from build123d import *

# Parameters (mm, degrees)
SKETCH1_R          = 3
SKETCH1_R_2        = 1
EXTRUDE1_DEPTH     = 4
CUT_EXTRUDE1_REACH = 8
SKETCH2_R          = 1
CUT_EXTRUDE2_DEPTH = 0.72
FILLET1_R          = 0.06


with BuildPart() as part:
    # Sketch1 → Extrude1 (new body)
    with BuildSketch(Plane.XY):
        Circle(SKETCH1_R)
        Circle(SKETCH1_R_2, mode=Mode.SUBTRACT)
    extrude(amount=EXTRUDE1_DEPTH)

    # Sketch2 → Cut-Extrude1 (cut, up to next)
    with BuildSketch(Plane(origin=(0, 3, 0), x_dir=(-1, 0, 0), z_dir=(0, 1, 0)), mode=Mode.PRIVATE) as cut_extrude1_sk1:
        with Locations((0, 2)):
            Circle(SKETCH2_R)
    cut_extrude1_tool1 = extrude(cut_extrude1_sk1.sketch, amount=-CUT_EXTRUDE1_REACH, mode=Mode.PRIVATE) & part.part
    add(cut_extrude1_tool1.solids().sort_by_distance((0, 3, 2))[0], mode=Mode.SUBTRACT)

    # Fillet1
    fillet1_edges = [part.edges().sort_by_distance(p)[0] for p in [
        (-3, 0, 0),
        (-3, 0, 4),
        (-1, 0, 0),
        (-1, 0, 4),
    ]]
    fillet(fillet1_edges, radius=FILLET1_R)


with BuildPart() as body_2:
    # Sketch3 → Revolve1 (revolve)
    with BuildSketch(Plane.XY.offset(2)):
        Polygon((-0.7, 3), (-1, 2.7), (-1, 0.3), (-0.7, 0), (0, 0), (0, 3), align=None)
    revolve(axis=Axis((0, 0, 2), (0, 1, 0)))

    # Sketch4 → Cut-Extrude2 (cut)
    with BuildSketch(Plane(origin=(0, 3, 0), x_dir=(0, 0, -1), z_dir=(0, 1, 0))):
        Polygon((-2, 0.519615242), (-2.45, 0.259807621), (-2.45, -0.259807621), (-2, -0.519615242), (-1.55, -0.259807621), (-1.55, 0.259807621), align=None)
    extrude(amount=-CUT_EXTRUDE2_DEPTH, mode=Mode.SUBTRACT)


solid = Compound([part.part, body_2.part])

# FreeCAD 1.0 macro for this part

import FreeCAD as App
import Part
import Sketcher

V = App.Vector
Q = App.Units.Quantity


def edges_at(feature, points):
    """Names of the edges that pass closest to the given points."""
    edges = feature.Shape.Edges
    near = lambda p: min(range(len(edges)), key=lambda i: edges[i].distToShape(Part.Vertex(*p))[0])
    return sorted({f"Edge{near(p) + 1}" for p in points})


def add_polygon(sketch, points):
    """Adds a closed chain of lines whose ends are joined by coincident constraints."""
    first, n = sketch.GeometryCount, len(points)
    for a, b in zip(points, points[1:] + points[:1]):
        sketch.addGeometry(Part.LineSegment(App.Vector(*a, 0), App.Vector(*b, 0)), False)
    for i in range(n):
        sketch.addConstraint(Sketcher.Constraint("Coincident", first + i, 2, first + (i + 1) % n, 1))

doc = App.newDocument("Part")
body = doc.addObject("PartDesign::Body", "Body")

# Sketch on XY plane
sketch1 = body.newObject("Sketcher::SketchObject", "Sketch")
sketch1.AttachmentSupport = (doc.getObject("XY_Plane"), [""])
sketch1.MapMode = "FlatFace"
sketch1.addGeometry([
    Part.Circle(V(0, 0, 0), V(0, 0, 1), 3),
    Part.Circle(V(0, 0, 0), V(0, 0, 1), 1),
], False)
sketch1.addConstraint([
    Sketcher.Constraint("Coincident", 0, 3, -1, 1),
    Sketcher.Constraint("Coincident", 1, 3, -1, 1),
    Sketcher.Constraint("Diameter", 0, 6.0),
    Sketcher.Constraint("Diameter", 1, 2.0),
])
pad1 = body.newObject("PartDesign::Pad", "Pad")
pad1.Profile = sketch1
pad1.Length = 4

# Sketch on XZ plane
sketch2 = body.newObject("Sketcher::SketchObject", "Sketch001")
sketch2.AttachmentSupport = (doc.getObject("XZ_Plane"), [""])
sketch2.MapMode = "FlatFace"
sketch2.AttachmentOffset = App.Placement(V(0, 0, -3), App.Rotation())
sketch2.addGeometry(Part.Circle(V(0, 2, 0), V(0, 0, 1), 1), False)
sketch2.addConstraint([
    Sketcher.Constraint("PointOnObject", 0, 3, -2),
    Sketcher.Constraint("Diameter", 0, 2.0),
    Sketcher.Constraint("DistanceY", -1, 1, 0, 3, 2.0),
])
pocket1 = body.newObject("PartDesign::Pocket", "Pocket")
pocket1.Profile = sketch2
pocket1.Type = "UpToFirst"
pocket1.Reversed = True
doc.recompute()

fillet = body.newObject("PartDesign::Fillet", "Fillet")
fillet.Base = (pocket1, edges_at(pocket1, [
    (-3, 0, 0),
    (-3, 0, 4),
    (-1, 0, 0),
    (-1, 0, 4),
]))
fillet.Radius = 0.06
body2 = doc.addObject("PartDesign::Body", "Body001")

# Sketch on XY plane
sketch3 = body2.newObject("Sketcher::SketchObject", "Sketch002")
sketch3.AttachmentSupport = (doc.getObject("XY_Plane001"), [""])
sketch3.MapMode = "FlatFace"
sketch3.AttachmentOffset = App.Placement(V(0, 0, 2), App.Rotation())
add_polygon(sketch3, [(-0.7, 3), (-1, 2.7), (-1, 0.3), (-0.7, 0), (0, 0), (0, 3)])  # lines 0-5
sketch3.addConstraint([
    Sketcher.Constraint("Vertical", 1),
    Sketcher.Constraint("Horizontal", 3),
    Sketcher.Constraint("Vertical", 4),
    Sketcher.Constraint("Horizontal", 5),
    Sketcher.Constraint("Coincident", 3, 2, -1, 1),
    Sketcher.Constraint("Perpendicular", 0, 2),
    Sketcher.Constraint("Vertical", 2, 2, 5, 2),
    Sketcher.Constraint("Equal", 0, 2),
    Sketcher.Constraint("DistanceY", 4, 1, 4, 2, 3.0),
    Sketcher.Constraint("DistanceX", 3, 1, 3, 2, 0.7),
    Sketcher.Constraint("DistanceY", 1, 2, 1, 1, 2.4),
])
revolution = body2.newObject("PartDesign::Revolution", "Revolution")
revolution.Profile = sketch3
revolution.ReferenceAxis = (sketch3, ["V_Axis"])
revolution.Angle = 360

# Sketch on XZ plane
sketch4 = body2.newObject("Sketcher::SketchObject", "Sketch003")
sketch4.AttachmentSupport = (doc.getObject("XZ_Plane001"), [""])
sketch4.MapMode = "FlatFace"
sketch4.AttachmentOffset = App.Placement(V(0, 0, -3), App.Rotation())
add_polygon(sketch4, [(-0.5, 2), (-0.3, 2.5), (0.3, 2.5), (0.5, 2), (0.3, 1.6), (-0.3, 1.6)])  # lines 0-5
sketch4.addConstraint([
    Sketcher.Constraint("Horizontal", 1),
    Sketcher.Constraint("Horizontal", 4),
    Sketcher.Constraint("Symmetric", 2, 2, 5, 2, -2),
    Sketcher.Constraint("Parallel", 0, 3),
    Sketcher.Constraint("Parallel", 2, 5),
    Sketcher.Constraint("Vertical", 1, 2, 3, 2),
    Sketcher.Constraint("Vertical", 0, 2, 4, 2),
    Sketcher.Constraint("Angle", 0, Q("60 deg")),
    Sketcher.Constraint("DistanceY", -1, 1, 2, 2, 2.0),
    Sketcher.Constraint("DistanceY", 3, 2, 1, 2, 0.9),
    Sketcher.Constraint("DistanceX", 1, 1, 1, 2, 0.519615),
])
pocket2 = body2.newObject("PartDesign::Pocket", "Pocket001")
pocket2.Profile = sketch4
pocket2.Length = 0.72
pocket2.Reversed = True

doc.recompute()
